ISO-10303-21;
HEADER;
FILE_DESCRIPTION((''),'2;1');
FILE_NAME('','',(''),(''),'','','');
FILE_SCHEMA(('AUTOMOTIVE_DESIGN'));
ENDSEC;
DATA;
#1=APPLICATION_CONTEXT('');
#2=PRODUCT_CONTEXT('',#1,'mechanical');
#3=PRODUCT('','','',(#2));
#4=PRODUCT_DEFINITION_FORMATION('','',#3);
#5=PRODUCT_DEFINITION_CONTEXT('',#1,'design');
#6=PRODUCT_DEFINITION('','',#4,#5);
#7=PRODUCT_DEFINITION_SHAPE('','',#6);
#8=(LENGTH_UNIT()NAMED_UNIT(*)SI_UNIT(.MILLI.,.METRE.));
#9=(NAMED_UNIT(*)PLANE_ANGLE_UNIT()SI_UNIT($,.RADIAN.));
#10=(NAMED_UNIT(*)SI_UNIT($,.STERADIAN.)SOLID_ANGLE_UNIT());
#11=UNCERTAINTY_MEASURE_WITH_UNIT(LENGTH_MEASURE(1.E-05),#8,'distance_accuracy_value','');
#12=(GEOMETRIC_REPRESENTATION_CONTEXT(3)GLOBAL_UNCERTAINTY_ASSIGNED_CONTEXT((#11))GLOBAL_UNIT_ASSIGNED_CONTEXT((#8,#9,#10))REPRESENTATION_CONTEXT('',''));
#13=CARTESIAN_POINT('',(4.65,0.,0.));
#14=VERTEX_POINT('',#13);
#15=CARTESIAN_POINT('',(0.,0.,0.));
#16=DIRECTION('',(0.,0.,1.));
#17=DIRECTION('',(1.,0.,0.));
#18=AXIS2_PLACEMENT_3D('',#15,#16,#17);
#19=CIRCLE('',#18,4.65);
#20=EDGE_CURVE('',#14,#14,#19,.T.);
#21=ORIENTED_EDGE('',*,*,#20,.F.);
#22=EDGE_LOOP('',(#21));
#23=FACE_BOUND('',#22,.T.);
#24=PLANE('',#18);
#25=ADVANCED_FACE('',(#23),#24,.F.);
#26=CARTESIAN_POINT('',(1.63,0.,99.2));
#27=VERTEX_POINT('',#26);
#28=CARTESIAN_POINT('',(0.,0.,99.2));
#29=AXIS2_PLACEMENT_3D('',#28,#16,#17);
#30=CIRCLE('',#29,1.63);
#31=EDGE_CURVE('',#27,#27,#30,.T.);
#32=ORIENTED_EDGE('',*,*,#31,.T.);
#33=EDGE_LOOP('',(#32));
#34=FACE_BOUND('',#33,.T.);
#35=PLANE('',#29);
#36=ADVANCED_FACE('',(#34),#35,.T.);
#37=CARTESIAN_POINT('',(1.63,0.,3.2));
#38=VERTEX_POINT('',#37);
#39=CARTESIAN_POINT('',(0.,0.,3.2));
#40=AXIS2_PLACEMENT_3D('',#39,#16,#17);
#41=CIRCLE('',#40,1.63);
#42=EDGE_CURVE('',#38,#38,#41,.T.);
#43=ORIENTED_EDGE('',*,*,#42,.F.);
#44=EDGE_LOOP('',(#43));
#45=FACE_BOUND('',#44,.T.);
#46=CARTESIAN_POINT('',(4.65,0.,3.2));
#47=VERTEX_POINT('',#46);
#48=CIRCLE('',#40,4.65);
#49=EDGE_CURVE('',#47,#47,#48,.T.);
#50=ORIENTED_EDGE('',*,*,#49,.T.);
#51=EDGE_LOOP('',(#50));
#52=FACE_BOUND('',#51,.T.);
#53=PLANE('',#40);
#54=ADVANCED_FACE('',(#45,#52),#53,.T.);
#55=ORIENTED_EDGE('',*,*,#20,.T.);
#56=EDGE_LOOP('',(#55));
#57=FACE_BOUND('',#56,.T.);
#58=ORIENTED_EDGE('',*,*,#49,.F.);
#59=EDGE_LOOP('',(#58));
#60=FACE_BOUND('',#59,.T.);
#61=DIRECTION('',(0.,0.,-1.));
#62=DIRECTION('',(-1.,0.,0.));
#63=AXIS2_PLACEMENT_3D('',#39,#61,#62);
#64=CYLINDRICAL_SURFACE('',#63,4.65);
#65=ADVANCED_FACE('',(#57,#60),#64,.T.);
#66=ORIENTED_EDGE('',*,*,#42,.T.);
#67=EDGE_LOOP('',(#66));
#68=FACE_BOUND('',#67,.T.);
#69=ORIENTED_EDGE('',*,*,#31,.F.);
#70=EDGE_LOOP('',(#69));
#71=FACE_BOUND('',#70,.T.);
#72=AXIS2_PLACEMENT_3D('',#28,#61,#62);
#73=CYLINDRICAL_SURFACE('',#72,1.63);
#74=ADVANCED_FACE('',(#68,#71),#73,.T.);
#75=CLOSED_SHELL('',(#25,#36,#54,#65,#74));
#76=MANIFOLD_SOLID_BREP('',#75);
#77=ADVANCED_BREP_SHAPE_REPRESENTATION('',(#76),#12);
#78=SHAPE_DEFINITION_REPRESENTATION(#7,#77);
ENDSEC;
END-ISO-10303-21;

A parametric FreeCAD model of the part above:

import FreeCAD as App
import Part
import Sketcher

V = App.Vector

doc = App.newDocument("Part")
body = doc.addObject("PartDesign::Body", "Body")

sketch1 = body.newObject("Sketcher::SketchObject", "Sketch")
sketch1.AttachmentSupport = (doc.getObject("XY_Plane"), [""])
sketch1.MapMode = "FlatFace"
sketch1.addGeometry(Part.Circle(V(0, 0, 0), V(0, 0, 1), 4.7), False)
sketch1.addConstraint([
    Sketcher.Constraint("Coincident", 0, 3, -1, 1),
    Sketcher.Constraint("Diameter", 0, 9.3),
])
pad1 = body.newObject("PartDesign::Pad", "Pad")
pad1.Profile = sketch1
pad1.Length = 3.2

sketch2 = body.newObject("Sketcher::SketchObject", "Sketch001")
sketch2.AttachmentSupport = (doc.getObject("XY_Plane"), [""])
sketch2.MapMode = "FlatFace"
sketch2.AttachmentOffset = App.Placement(V(0, 0, 3.2), App.Rotation())
sketch2.addGeometry(Part.Circle(V(0, 0, 0), V(0, 0, 1), 1.6), False)
sketch2.addConstraint([
    Sketcher.Constraint("Coincident", 0, 3, -1, 1),
    Sketcher.Constraint("Diameter", 0, 3.26),
])
pad2 = body.newObject("PartDesign::Pad", "Pad001")
pad2.Profile = sketch2
pad2.Length = 96

doc.recompute()
